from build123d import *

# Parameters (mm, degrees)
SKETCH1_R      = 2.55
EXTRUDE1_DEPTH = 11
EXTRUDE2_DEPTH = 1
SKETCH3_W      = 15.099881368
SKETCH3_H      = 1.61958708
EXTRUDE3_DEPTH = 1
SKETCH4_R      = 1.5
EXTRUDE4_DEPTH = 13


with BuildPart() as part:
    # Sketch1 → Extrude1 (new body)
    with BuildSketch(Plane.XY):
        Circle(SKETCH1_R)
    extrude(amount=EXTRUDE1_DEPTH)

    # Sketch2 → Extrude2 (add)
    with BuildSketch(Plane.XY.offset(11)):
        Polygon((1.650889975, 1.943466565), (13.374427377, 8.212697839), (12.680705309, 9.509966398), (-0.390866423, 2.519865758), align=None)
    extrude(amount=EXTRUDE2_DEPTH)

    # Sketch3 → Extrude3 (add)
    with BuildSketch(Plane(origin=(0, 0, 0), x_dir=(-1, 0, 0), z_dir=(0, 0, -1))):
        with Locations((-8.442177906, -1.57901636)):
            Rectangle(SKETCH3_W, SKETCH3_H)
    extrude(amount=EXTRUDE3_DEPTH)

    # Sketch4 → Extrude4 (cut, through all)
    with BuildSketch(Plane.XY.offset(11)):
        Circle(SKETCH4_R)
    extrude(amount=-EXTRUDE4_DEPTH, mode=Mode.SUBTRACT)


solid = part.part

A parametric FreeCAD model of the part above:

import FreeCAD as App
import Part
import Sketcher
from FreeCAD import Vector
Q = App.Units.Quantity


def add_polygon(sketch, points):
    """Adds a closed chain of lines whose ends are joined by coincident constraints."""
    first, n = sketch.GeometryCount, len(points)
    for a, b in zip(points, points[1:] + points[:1]):
        sketch.addGeometry(Part.LineSegment(App.Vector(*a, 0), App.Vector(*b, 0)), False)
    for i in range(n):
        sketch.addConstraint(Sketcher.Constraint("Coincident", first + i, 2, first + (i + 1) % n, 1))

doc = App.newDocument("Part")
body = doc.addObject("PartDesign::Body", "Body")

# Sketch on XY plane
sketch1 = body.newObject("Sketcher::SketchObject", "Sketch")
sketch1.AttachmentSupport = (doc.getObject("XY_Plane"), [""])
sketch1.MapMode = "FlatFace"
sketch1.addGeometry(Part.Circle(Vector(0, 0, 0), Vector(0, 0, 1), 2.5), False)
sketch1.addConstraint(Sketcher.Constraint("Coincident", 0, 3, -1, 1))
sketch1.addConstraint(Sketcher.Constraint("Diameter", 0, Q("5.1 mm")))
pad1 = body.newObject("PartDesign::Pad", "Pad")
pad1.Profile = sketch1
pad1.Length = 11

# Sketch on XY plane
sketch2 = body.newObject("Sketcher::SketchObject", "Sketch001")
sketch2.AttachmentSupport = (doc.getObject("XY_Plane"), [""])
sketch2.MapMode = "FlatFace"
sketch2.AttachmentOffset = App.Placement(Vector(0, 0, 11), App.Rotation())
add_polygon(sketch2, [(1.7, 1.9), (13.4, 8.2), (12.7, 9.5), (-0.4, 2.5)])  # lines 0-3
sketch2.addConstraint(Sketcher.Constraint("Perpendicular", 0, 1))
sketch2.addConstraint(Sketcher.Constraint("Perpendicular", 1, 2))
sketch2.addConstraint(Sketcher.Constraint("DistanceY", 2, 2, 1, 2, Q("6.990101 mm")))
sketch2.addConstraint(Sketcher.Constraint("DistanceY", 3, 2, 2, 2, Q("0.576399 mm")))
sketch2.addConstraint(Sketcher.Constraint("DistanceX", -1, 1, 3, 2, Q("1.65089 mm")))
sketch2.addConstraint(Sketcher.Constraint("DistanceY", 0, 2, 1, 2, Q("1.297269 mm")))
sketch2.addConstraint(Sketcher.Constraint("DistanceX", 2, 2, 1, 2, Q("13.071572 mm")))
sketch2.addConstraint(Sketcher.Constraint("DistanceY", -1, 1, 0, 2, Q("8.212698 mm")))
pad2 = body.newObject("PartDesign::Pad", "Pad001")
pad2.Profile = sketch2
pad2.Length = 1

# Sketch on XY plane
sketch3 = body.newObject("Sketcher::SketchObject", "Sketch002")
sketch3.AttachmentSupport = (doc.getObject("XY_Plane"), [""])
sketch3.MapMode = "FlatFace"
add_polygon(sketch3, [(16, -0.8), (16, -2.4), (0.9, -2.4), (0.9, -0.8)])  # lines 0-3
sketch3.addConstraint(Sketcher.Constraint("Vertical", 0))
sketch3.addConstraint(Sketcher.Constraint("Horizontal", 1))
sketch3.addConstraint(Sketcher.Constraint("Vertical", 2))
sketch3.addConstraint(Sketcher.Constraint("Horizontal", 3))
sketch3.addConstraint(Sketcher.Constraint("DistanceX", 1, 2, 1, 1, Q("15.099881 mm")))
sketch3.addConstraint(Sketcher.Constraint("DistanceY", 0, 2, 0, 1, Q("1.619587 mm")))
sketch3.addConstraint(Sketcher.Constraint("DistanceX", -1, 1, 0, 2, Q("15.992119 mm")))
sketch3.addConstraint(Sketcher.Constraint("DistanceY", 0, 2, -1, 1, Q("2.38881 mm")))
pad3 = body.newObject("PartDesign::Pad", "Pad002")
pad3.Profile = sketch3
pad3.Length = 1
pad3.Reversed = True

# Sketch on XY plane
sketch4 = body.newObject("Sketcher::SketchObject", "Sketch003")
sketch4.AttachmentSupport = (doc.getObject("XY_Plane"), [""])
sketch4.MapMode = "FlatFace"
sketch4.AttachmentOffset = App.Placement(Vector(0, 0, 11), App.Rotation())
sketch4.addGeometry(Part.Circle(Vector(0, 0, 0), Vector(0, 0, 1), 1.5), False)
sketch4.addConstraint(Sketcher.Constraint("Coincident", 0, 3, -1, 1))
sketch4.addConstraint(Sketcher.Constraint("Diameter", 0, Q("3 mm")))
pocket1 = body.newObject("PartDesign::Pocket", "Pocket")
pocket1.Profile = sketch4
pocket1.Type = "ThroughAll"

doc.recompute()
